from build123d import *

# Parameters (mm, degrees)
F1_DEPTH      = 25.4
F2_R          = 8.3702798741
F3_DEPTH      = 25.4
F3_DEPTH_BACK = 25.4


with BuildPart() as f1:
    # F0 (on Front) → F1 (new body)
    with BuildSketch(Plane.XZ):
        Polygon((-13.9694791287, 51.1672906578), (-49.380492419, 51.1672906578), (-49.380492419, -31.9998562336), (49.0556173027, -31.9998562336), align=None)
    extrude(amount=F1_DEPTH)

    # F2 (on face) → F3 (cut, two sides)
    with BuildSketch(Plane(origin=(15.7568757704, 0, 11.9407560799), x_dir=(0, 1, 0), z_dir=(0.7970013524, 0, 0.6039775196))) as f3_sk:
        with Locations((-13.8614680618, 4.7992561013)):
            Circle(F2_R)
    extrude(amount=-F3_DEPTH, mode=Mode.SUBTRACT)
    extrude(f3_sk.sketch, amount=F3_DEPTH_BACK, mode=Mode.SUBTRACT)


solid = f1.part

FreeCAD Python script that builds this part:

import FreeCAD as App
import Part
import Sketcher
Q = App.Units.Quantity

doc = App.newDocument("Part")
body = doc.addObject("PartDesign::Body", "Body")

# Sketch on XZ plane
sketch1 = doc.addObject("Sketcher::SketchObject", "Sketch")
body.addObject(sketch1)
sketch1.AttachmentSupport = (doc.XZ_Plane, [""])
sketch1.MapMode = "FlatFace"
sketch1.addGeometry(Part.LineSegment(App.Vector(-14, 51, 0), App.Vector(-49, 51, 0)), False)
sketch1.addGeometry(Part.LineSegment(App.Vector(-49, 51, 0), App.Vector(-49, -32, 0)), False)
sketch1.addGeometry(Part.LineSegment(App.Vector(-49, -32, 0), App.Vector(49, -32, 0)), False)
sketch1.addGeometry(Part.LineSegment(App.Vector(49, -32, 0), App.Vector(-14, 51, 0)), False)
sketch1.addConstraint(Sketcher.Constraint("Coincident", 0, 2, 1, 1))
sketch1.addConstraint(Sketcher.Constraint("Coincident", 1, 2, 2, 1))
sketch1.addConstraint(Sketcher.Constraint("Coincident", 2, 2, 3, 1))
sketch1.addConstraint(Sketcher.Constraint("Coincident", 3, 2, 0, 1))
sketch1.addConstraint(Sketcher.Constraint("Horizontal", 0))
sketch1.addConstraint(Sketcher.Constraint("Vertical", 1))
sketch1.addConstraint(Sketcher.Constraint("Horizontal", 2))
sketch1.addConstraint(Sketcher.Constraint("DistanceX", 2, 1, 2, 2, 98.43611))
sketch1.addConstraint(Sketcher.Constraint("Distance", 3, 104.35007))
sketch1.addConstraint(Sketcher.Constraint("DistanceX", 0, 2, 0, 1, 35.411013))
sketch1.addConstraint(Sketcher.Constraint("DistanceY", -1, 1, 0, 2, 51.167291))
sketch1.addConstraint(Sketcher.Constraint("DistanceX", 3, 2, -1, 1, 13.969479))
pad1 = doc.addObject("PartDesign::Pad", "Pad")
body.addObject(pad1)
pad1.Profile = sketch1
pad1.Length = Q("1 in")

# Sketch on an angled plane
sketch2 = doc.addObject("Sketcher::SketchObject", "Sketch001")
body.addObject(sketch2)
sketch2.Placement = App.Placement(App.Vector(15.756876, 0, 11.940756), App.Rotation(App.Vector(0, 1, 0), App.Vector(-0.60397752, 0, 0.797001352), App.Vector(0.797001352, 0, 0.60397752), "ZXY"))
sketch2.addGeometry(Part.Circle(App.Vector(-14, 5, 0), App.Vector(0, 0, 1), 8), False)
sketch2.addConstraint(Sketcher.Constraint("Diameter", 0, 16.74056))
sketch2.addConstraint(Sketcher.Constraint("DistanceX", 0, 3, -1, 1, 13.861468))
sketch2.addConstraint(Sketcher.Constraint("DistanceY", -1, 1, 0, 3, 4.799256))
pocket1 = doc.addObject("PartDesign::Pocket", "Pocket")
body.addObject(pocket1)
pocket1.Profile = sketch2
pocket1.Type = "TwoLengths"
pocket1.Length = Q("1 in")
pocket1.Length2 = Q("1 in")

doc.recompute()
